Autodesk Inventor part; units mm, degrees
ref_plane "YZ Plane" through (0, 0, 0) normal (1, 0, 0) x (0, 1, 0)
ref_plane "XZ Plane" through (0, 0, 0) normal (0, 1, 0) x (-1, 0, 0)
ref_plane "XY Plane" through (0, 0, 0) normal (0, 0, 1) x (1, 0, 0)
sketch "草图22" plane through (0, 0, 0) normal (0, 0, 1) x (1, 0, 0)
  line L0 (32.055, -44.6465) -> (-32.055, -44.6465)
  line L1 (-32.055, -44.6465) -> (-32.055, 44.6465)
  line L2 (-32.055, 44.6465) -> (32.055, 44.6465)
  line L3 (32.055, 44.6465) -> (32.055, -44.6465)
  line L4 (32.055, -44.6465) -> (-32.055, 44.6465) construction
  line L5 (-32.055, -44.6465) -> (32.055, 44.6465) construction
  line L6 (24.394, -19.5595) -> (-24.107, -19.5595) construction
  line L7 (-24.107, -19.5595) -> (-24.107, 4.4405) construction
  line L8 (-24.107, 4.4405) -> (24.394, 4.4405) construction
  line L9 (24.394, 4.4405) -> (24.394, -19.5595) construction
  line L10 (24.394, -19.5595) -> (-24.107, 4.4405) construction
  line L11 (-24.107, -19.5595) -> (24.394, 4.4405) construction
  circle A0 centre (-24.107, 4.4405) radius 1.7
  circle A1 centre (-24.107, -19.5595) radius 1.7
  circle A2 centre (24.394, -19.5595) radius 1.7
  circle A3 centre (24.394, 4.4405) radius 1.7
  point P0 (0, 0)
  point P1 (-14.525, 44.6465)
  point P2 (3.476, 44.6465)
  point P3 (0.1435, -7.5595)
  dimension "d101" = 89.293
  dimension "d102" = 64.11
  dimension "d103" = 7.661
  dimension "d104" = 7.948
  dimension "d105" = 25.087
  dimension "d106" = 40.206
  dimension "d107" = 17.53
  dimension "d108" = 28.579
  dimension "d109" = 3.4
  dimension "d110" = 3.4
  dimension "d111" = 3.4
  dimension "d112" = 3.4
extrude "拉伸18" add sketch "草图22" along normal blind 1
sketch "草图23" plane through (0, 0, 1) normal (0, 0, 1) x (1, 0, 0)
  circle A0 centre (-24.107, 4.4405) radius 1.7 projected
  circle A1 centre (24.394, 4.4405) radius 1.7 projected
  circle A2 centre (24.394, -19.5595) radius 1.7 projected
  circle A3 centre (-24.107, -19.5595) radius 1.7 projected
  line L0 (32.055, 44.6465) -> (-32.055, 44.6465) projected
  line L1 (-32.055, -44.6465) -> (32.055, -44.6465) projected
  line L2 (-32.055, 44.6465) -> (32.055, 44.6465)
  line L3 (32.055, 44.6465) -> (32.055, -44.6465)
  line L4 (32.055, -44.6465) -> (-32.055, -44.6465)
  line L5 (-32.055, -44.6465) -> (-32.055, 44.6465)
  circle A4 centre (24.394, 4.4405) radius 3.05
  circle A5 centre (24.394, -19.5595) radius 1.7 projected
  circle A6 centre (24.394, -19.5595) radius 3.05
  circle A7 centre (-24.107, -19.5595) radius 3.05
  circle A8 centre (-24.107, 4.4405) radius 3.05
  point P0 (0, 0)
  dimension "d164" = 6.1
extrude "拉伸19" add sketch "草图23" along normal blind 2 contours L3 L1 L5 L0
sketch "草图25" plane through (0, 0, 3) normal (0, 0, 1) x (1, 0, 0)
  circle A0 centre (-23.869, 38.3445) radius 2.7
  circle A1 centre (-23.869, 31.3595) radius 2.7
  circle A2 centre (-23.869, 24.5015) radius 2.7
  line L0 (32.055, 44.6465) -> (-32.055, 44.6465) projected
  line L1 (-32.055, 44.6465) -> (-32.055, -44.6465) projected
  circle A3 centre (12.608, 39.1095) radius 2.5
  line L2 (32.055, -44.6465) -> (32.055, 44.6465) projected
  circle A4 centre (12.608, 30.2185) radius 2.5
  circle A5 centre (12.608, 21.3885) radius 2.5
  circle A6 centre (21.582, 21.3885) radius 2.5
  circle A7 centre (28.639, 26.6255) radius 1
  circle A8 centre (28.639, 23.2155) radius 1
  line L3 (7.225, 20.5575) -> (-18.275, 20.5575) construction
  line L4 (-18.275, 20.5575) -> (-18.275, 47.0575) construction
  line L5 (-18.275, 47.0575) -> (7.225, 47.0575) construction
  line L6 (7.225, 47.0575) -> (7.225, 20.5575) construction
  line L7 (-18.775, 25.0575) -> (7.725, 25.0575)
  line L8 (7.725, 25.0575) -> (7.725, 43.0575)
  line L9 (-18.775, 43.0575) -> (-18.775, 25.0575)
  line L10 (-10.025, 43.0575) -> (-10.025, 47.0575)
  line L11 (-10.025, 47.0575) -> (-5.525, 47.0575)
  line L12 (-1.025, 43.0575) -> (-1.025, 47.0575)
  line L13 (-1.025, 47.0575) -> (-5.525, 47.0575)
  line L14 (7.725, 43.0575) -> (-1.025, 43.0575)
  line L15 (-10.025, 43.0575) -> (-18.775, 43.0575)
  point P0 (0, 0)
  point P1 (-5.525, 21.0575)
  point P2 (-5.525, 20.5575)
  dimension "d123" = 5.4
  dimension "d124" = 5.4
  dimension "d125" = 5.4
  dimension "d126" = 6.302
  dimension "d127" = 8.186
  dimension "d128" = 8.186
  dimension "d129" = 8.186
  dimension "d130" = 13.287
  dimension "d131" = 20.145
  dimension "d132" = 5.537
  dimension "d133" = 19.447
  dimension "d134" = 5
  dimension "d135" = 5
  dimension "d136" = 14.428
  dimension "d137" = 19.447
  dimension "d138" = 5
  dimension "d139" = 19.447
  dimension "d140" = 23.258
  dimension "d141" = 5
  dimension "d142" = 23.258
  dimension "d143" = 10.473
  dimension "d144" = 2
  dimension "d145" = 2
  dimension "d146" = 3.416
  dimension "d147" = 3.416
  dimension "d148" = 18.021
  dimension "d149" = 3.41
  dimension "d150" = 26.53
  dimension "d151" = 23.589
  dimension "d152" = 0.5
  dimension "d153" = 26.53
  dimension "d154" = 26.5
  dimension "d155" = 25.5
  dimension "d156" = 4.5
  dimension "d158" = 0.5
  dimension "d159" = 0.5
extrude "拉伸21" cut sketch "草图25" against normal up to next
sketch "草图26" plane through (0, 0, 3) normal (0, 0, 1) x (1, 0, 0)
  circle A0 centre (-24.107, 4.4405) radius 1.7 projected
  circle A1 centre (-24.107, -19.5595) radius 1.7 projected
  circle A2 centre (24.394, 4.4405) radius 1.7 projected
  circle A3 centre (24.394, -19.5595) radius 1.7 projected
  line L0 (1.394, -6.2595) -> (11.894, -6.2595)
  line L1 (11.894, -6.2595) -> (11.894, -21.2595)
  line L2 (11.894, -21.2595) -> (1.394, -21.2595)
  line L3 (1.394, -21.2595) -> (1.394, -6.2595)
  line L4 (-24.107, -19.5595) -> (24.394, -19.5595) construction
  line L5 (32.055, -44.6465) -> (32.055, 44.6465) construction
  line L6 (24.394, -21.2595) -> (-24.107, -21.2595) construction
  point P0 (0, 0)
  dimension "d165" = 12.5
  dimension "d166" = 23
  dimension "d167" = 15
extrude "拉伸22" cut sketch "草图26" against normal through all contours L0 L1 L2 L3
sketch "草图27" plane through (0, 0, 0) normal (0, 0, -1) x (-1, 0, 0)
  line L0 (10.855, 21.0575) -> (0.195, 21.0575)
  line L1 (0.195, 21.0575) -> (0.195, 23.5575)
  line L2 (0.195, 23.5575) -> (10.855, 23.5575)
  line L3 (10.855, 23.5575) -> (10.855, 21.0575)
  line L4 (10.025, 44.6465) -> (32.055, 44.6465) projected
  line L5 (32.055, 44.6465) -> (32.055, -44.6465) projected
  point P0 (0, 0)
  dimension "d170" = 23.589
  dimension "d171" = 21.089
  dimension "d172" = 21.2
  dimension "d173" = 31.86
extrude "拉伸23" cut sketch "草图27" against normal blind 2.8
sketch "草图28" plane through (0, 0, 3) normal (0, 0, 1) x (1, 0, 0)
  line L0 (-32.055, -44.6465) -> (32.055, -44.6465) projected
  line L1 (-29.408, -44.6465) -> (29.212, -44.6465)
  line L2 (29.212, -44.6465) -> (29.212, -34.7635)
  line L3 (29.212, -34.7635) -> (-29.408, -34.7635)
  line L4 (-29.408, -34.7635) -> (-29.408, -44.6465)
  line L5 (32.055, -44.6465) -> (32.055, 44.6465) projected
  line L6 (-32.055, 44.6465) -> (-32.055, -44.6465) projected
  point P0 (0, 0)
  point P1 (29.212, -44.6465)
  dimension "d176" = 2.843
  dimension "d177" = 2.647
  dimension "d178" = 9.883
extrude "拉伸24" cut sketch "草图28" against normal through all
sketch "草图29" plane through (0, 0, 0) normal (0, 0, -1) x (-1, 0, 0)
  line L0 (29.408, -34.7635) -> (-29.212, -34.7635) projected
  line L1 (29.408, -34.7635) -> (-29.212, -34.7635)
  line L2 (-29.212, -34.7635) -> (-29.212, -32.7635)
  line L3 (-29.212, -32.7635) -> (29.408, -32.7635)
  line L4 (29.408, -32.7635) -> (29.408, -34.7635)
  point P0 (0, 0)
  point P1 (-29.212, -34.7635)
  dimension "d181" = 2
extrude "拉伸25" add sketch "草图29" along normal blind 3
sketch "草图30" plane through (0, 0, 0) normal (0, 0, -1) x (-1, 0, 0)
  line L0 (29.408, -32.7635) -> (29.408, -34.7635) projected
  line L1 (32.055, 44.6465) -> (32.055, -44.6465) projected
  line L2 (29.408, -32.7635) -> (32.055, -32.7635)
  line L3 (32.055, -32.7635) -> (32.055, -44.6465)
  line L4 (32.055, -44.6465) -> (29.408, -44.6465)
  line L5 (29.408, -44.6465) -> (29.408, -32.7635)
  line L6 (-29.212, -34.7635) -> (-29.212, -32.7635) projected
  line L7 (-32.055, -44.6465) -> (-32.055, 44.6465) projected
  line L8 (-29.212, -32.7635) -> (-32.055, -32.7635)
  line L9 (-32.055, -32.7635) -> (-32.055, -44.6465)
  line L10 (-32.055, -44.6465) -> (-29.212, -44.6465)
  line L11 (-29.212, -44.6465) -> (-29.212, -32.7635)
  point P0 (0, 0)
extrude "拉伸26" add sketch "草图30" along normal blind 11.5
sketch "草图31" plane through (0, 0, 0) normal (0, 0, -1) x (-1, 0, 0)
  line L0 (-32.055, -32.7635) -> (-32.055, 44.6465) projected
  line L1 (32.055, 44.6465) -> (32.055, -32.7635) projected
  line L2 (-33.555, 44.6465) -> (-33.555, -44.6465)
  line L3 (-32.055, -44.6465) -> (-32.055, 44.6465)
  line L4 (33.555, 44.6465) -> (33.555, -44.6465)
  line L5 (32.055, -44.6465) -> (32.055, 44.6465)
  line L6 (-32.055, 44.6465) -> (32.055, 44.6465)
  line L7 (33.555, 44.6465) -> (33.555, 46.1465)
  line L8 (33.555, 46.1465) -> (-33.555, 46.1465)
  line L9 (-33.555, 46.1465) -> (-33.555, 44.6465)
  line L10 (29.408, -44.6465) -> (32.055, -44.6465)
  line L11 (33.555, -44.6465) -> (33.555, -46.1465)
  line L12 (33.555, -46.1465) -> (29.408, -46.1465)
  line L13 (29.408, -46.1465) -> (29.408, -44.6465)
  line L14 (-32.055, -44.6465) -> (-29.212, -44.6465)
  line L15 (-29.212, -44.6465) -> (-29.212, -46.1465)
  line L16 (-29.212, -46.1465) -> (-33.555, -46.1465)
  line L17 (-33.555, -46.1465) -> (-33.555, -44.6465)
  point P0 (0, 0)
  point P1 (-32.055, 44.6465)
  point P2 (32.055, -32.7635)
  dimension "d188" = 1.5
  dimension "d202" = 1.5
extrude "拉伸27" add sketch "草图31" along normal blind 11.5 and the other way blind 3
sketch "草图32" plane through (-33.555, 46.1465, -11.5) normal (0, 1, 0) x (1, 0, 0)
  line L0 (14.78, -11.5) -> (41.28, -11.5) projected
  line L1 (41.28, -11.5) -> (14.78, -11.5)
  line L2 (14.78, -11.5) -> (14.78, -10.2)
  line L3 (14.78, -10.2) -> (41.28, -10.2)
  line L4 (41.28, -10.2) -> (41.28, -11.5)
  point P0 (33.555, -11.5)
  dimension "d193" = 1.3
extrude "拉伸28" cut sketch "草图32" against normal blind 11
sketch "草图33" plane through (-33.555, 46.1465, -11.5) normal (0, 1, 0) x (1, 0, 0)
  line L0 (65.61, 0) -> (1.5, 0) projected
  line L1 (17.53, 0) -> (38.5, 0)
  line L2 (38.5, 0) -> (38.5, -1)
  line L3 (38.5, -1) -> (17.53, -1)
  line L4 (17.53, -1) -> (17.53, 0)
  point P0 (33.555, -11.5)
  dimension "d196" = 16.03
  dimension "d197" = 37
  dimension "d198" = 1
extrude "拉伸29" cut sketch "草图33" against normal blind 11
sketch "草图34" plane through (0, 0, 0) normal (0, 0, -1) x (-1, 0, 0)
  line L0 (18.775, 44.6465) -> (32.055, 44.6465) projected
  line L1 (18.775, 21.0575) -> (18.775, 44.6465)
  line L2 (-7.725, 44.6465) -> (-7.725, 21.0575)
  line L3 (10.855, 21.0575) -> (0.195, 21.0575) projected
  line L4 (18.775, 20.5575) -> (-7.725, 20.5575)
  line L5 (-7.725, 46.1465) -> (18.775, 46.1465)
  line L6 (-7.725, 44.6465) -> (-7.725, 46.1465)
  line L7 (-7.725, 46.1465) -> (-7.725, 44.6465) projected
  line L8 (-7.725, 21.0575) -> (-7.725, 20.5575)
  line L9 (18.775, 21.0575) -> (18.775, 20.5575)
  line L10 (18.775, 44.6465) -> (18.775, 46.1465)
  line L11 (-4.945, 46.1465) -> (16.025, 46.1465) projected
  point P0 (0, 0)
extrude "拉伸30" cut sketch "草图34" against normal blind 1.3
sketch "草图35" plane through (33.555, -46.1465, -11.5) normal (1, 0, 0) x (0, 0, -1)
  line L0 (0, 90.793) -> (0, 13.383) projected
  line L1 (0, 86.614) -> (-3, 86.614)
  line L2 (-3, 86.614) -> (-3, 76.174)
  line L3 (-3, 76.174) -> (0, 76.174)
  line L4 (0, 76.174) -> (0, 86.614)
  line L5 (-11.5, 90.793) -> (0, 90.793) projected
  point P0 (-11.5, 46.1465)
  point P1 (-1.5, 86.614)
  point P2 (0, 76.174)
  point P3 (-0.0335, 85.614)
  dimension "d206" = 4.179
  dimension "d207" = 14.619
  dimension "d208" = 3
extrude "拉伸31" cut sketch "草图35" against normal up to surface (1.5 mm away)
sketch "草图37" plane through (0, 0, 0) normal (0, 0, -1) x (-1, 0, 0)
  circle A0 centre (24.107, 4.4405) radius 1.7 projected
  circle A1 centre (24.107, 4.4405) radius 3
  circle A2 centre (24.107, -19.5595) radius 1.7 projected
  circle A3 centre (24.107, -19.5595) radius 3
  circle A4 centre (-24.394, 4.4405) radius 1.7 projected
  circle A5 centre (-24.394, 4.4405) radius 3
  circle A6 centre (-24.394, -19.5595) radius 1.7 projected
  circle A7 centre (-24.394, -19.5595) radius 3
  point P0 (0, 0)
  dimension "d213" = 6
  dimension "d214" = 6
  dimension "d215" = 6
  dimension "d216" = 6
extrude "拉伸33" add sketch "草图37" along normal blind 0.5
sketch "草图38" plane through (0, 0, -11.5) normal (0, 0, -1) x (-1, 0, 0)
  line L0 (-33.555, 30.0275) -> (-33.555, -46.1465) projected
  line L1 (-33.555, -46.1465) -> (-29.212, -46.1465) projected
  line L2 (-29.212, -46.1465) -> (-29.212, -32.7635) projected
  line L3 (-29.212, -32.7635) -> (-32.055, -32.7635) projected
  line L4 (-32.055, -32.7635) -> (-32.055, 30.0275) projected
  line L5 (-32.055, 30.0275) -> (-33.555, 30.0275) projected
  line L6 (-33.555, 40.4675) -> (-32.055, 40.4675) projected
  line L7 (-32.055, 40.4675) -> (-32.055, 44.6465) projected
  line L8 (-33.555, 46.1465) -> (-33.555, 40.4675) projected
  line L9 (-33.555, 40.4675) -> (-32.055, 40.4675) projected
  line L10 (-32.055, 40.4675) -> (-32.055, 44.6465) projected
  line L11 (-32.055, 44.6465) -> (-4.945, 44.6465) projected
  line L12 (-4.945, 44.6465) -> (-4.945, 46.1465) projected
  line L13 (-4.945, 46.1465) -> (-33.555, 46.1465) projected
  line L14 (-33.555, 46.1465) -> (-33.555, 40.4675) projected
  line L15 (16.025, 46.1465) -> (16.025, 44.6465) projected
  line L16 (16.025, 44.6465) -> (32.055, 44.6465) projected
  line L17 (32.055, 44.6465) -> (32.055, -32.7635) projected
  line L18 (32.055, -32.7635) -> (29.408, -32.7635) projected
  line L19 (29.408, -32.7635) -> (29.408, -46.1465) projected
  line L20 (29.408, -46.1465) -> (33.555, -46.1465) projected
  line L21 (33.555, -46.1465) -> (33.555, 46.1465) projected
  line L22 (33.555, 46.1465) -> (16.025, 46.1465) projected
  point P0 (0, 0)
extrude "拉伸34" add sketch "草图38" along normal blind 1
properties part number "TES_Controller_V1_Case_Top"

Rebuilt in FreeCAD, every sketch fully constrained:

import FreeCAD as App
import Part
import Sketcher
from FreeCAD import Vector

doc = App.newDocument("Part")
body = doc.addObject("PartDesign::Body", "Body")

sketch1 = body.newObject("Sketcher::SketchObject", "Sketch")
sketch1.AttachmentSupport = (doc.getObject("XY_Plane"), [""])
sketch1.MapMode = "FlatFace"
sketch1.addGeometry(Part.LineSegment(Vector(-32.1, -44.6, 0), Vector(32.1, -44.6, 0)), False)
sketch1.addGeometry(Part.LineSegment(Vector(32.1, -44.6, 0), Vector(32.1, 44.6, 0)), False)
sketch1.addGeometry(Part.LineSegment(Vector(32.1, 44.6, 0), Vector(-32.1, 44.6, 0)), False)
sketch1.addGeometry(Part.LineSegment(Vector(-32.1, 44.6, 0), Vector(-32.1, -44.6, 0)), False)
sketch1.addGeometry(Part.Circle(Vector(-24.1, -19.6, 0), Vector(0, 0, 1), 1.7), False)
sketch1.addGeometry(Part.Circle(Vector(24.4, -19.6, 0), Vector(0, 0, 1), 1.7), False)
sketch1.addGeometry(Part.Circle(Vector(-24.1, 4.4, 0), Vector(0, 0, 1), 1.7), False)
sketch1.addGeometry(Part.Circle(Vector(24.4, 4.4, 0), Vector(0, 0, 1), 1.7), False)
sketch1.addConstraint(Sketcher.Constraint("Coincident", 0, 2, 1, 1))
sketch1.addConstraint(Sketcher.Constraint("Coincident", 1, 2, 2, 1))
sketch1.addConstraint(Sketcher.Constraint("Coincident", 2, 2, 3, 1))
sketch1.addConstraint(Sketcher.Constraint("Coincident", 3, 2, 0, 1))
sketch1.addConstraint(Sketcher.Constraint("Horizontal", 0))
sketch1.addConstraint(Sketcher.Constraint("Vertical", 1))
sketch1.addConstraint(Sketcher.Constraint("Horizontal", 2))
sketch1.addConstraint(Sketcher.Constraint("Vertical", 3))
sketch1.addConstraint(Sketcher.Constraint("Equal", 4, 5))
sketch1.addConstraint(Sketcher.Constraint("Equal", 5, 6))
sketch1.addConstraint(Sketcher.Constraint("Equal", 6, 7))
sketch1.addConstraint(Sketcher.Constraint("Symmetric", 0, 2, 2, 2, -1, 1))
sketch1.addConstraint(Sketcher.Constraint("Horizontal", 4, 3, 5, 3))
sketch1.addConstraint(Sketcher.Constraint("Horizontal", 6, 3, 7, 3))
sketch1.addConstraint(Sketcher.Constraint("Vertical", 4, 3, 6, 3))
sketch1.addConstraint(Sketcher.Constraint("Vertical", 5, 3, 7, 3))
sketch1.addConstraint(Sketcher.Constraint("Diameter", 4, 3.4))
sketch1.addConstraint(Sketcher.Constraint("DistanceX", 0, 1, 0, 2, 64.11))
sketch1.addConstraint(Sketcher.Constraint("DistanceY", 1, 1, 1, 2, 89.293))
sketch1.addConstraint(Sketcher.Constraint("DistanceY", 4, 3, 6, 3, 24.0))
sketch1.addConstraint(Sketcher.Constraint("DistanceX", 5, 3, 0, 2, 7.661))
sketch1.addConstraint(Sketcher.Constraint("DistanceY", 0, 2, 5, 3, 25.087))
sketch1.addConstraint(Sketcher.Constraint("DistanceX", 2, 2, 6, 3, 7.948))
pad1 = body.newObject("PartDesign::Pad", "Pad")
pad1.Profile = sketch1
pad1.Length = 1

sketch2 = body.newObject("Sketcher::SketchObject", "Sketch001")
sketch2.AttachmentSupport = (doc.getObject("XY_Plane"), [""])
sketch2.MapMode = "FlatFace"
sketch2.AttachmentOffset = App.Placement(Vector(0, 0, 1), App.Rotation())
sketch2.addGeometry(Part.LineSegment(Vector(32.1, -44.6, 0), Vector(32.1, 44.6, 0)), False)
sketch2.addGeometry(Part.LineSegment(Vector(32.1, 44.6, 0), Vector(-32.1, 44.6, 0)), False)
sketch2.addGeometry(Part.LineSegment(Vector(-32.1, 44.6, 0), Vector(-32.1, -44.6, 0)), False)
sketch2.addGeometry(Part.LineSegment(Vector(-32.1, -44.6, 0), Vector(32.1, -44.6, 0)), False)
sketch2.addGeometry(Part.Circle(Vector(-24.1, -19.6, 0), Vector(0, 0, 1), 3), False)
sketch2.addGeometry(Part.Circle(Vector(24.4, -19.6, 0), Vector(0, 0, 1), 3), False)
sketch2.addGeometry(Part.Circle(Vector(-24.1, 4.4, 0), Vector(0, 0, 1), 3), False)
sketch2.addGeometry(Part.Circle(Vector(24.4, 4.4, 0), Vector(0, 0, 1), 3), False)
sketch2.addConstraint(Sketcher.Constraint("Coincident", 0, 2, 1, 1))
sketch2.addConstraint(Sketcher.Constraint("Coincident", 1, 2, 2, 1))
sketch2.addConstraint(Sketcher.Constraint("Coincident", 2, 2, 3, 1))
sketch2.addConstraint(Sketcher.Constraint("Coincident", 3, 2, 0, 1))
sketch2.addConstraint(Sketcher.Constraint("Vertical", 0))
sketch2.addConstraint(Sketcher.Constraint("Horizontal", 1))
sketch2.addConstraint(Sketcher.Constraint("Vertical", 2))
sketch2.addConstraint(Sketcher.Constraint("Horizontal", 3))
sketch2.addConstraint(Sketcher.Constraint("Equal", 4, 5))
sketch2.addConstraint(Sketcher.Constraint("Equal", 5, 6))
sketch2.addConstraint(Sketcher.Constraint("Equal", 6, 7))
sketch2.addConstraint(Sketcher.Constraint("Symmetric", 0, 2, 2, 2, -1, 1))
sketch2.addConstraint(Sketcher.Constraint("Horizontal", 4, 3, 5, 3))
sketch2.addConstraint(Sketcher.Constraint("Horizontal", 6, 3, 7, 3))
sketch2.addConstraint(Sketcher.Constraint("Vertical", 4, 3, 6, 3))
sketch2.addConstraint(Sketcher.Constraint("Vertical", 5, 3, 7, 3))
sketch2.addConstraint(Sketcher.Constraint("Diameter", 4, 6.1))
sketch2.addConstraint(Sketcher.Constraint("DistanceY", 4, 3, 6, 3, 24.0))
sketch2.addConstraint(Sketcher.Constraint("DistanceX", 1, 2, 1, 1, 64.11))
sketch2.addConstraint(Sketcher.Constraint("DistanceY", 0, 1, 0, 2, 89.293))
sketch2.addConstraint(Sketcher.Constraint("DistanceX", 4, 3, -1, 1, 24.107))
sketch2.addConstraint(Sketcher.Constraint("DistanceX", -1, 1, 5, 3, 24.394))
sketch2.addConstraint(Sketcher.Constraint("DistanceY", 7, 3, 0, 2, 40.206))
pad2 = body.newObject("PartDesign::Pad", "Pad001")
pad2.Profile = sketch2
pad2.Length = 2

sketch3 = body.newObject("Sketcher::SketchObject", "Sketch002")
sketch3.AttachmentSupport = (doc.getObject("XY_Plane"), [""])
sketch3.MapMode = "FlatFace"
sketch3.AttachmentOffset = App.Placement(Vector(0, 0, 3), App.Rotation())
sketch3.addGeometry(Part.Circle(Vector(-23.9, 38.3, 0), Vector(0, 0, 1), 2.7), False)
sketch3.addGeometry(Part.Circle(Vector(-23.9, 31.4, 0), Vector(0, 0, 1), 2.7), False)
sketch3.addGeometry(Part.Circle(Vector(-23.9, 24.5, 0), Vector(0, 0, 1), 2.7), False)
sketch3.addGeometry(Part.LineSegment(Vector(-1, 43.1, 0), Vector(-1, 47.1, 0)), False)
sketch3.addGeometry(Part.LineSegment(Vector(-1, 47.1, 0), Vector(-10, 47.1, 0)), False)
sketch3.addGeometry(Part.LineSegment(Vector(-10, 47.1, 0), Vector(-10, 43.1, 0)), False)
sketch3.addGeometry(Part.LineSegment(Vector(-10, 43.1, 0), Vector(-18.8, 43.1, 0)), False)
sketch3.addGeometry(Part.LineSegment(Vector(-18.8, 43.1, 0), Vector(-18.8, 25.1, 0)), False)
sketch3.addGeometry(Part.LineSegment(Vector(-18.8, 25.1, 0), Vector(7.7, 25.1, 0)), False)
sketch3.addGeometry(Part.LineSegment(Vector(7.7, 25.1, 0), Vector(7.7, 43.1, 0)), False)
sketch3.addGeometry(Part.LineSegment(Vector(7.7, 43.1, 0), Vector(-1, 43.1, 0)), False)
sketch3.addGeometry(Part.Circle(Vector(12.6, 39.1, 0), Vector(0, 0, 1), 2.5), False)
sketch3.addGeometry(Part.Circle(Vector(12.6, 30.2, 0), Vector(0, 0, 1), 2.5), False)
sketch3.addGeometry(Part.Circle(Vector(12.6, 21.4, 0), Vector(0, 0, 1), 2.5), False)
sketch3.addGeometry(Part.Circle(Vector(21.6, 21.4, 0), Vector(0, 0, 1), 2.5), False)
sketch3.addGeometry(Part.Circle(Vector(28.6, 26.6, 0), Vector(0, 0, 1), 1), False)
sketch3.addGeometry(Part.Circle(Vector(28.6, 23.2, 0), Vector(0, 0, 1), 1), False)
sketch3.addConstraint(Sketcher.Constraint("Coincident", 3, 2, 4, 1))
sketch3.addConstraint(Sketcher.Constraint("Coincident", 4, 2, 5, 1))
sketch3.addConstraint(Sketcher.Constraint("Coincident", 5, 2, 6, 1))
sketch3.addConstraint(Sketcher.Constraint("Coincident", 6, 2, 7, 1))
sketch3.addConstraint(Sketcher.Constraint("Coincident", 7, 2, 8, 1))
sketch3.addConstraint(Sketcher.Constraint("Coincident", 8, 2, 9, 1))
sketch3.addConstraint(Sketcher.Constraint("Coincident", 9, 2, 10, 1))
sketch3.addConstraint(Sketcher.Constraint("Coincident", 10, 2, 3, 1))
sketch3.addConstraint(Sketcher.Constraint("Vertical", 3))
sketch3.addConstraint(Sketcher.Constraint("Horizontal", 4))
sketch3.addConstraint(Sketcher.Constraint("Vertical", 5))
sketch3.addConstraint(Sketcher.Constraint("Horizontal", 6))
sketch3.addConstraint(Sketcher.Constraint("Vertical", 7))
sketch3.addConstraint(Sketcher.Constraint("Horizontal", 8))
sketch3.addConstraint(Sketcher.Constraint("Vertical", 9))
sketch3.addConstraint(Sketcher.Constraint("Horizontal", 10))
sketch3.addConstraint(Sketcher.Constraint("Equal", 0, 1))
sketch3.addConstraint(Sketcher.Constraint("Equal", 1, 2))
sketch3.addConstraint(Sketcher.Constraint("Equal", 11, 12))
sketch3.addConstraint(Sketcher.Constraint("Equal", 12, 13))
sketch3.addConstraint(Sketcher.Constraint("Equal", 13, 14))
sketch3.addConstraint(Sketcher.Constraint("Equal", 15, 16))
sketch3.addConstraint(Sketcher.Constraint("Horizontal", 13, 3, 14, 3))
sketch3.addConstraint(Sketcher.Constraint("Horizontal", 6, 2, 9, 2))
sketch3.addConstraint(Sketcher.Constraint("Vertical", 0, 3, 1, 3))
sketch3.addConstraint(Sketcher.Constraint("Vertical", 1, 3, 2, 3))
sketch3.addConstraint(Sketcher.Constraint("Vertical", 11, 3, 12, 3))
sketch3.addConstraint(Sketcher.Constraint("Vertical", 12, 3, 13, 3))
sketch3.addConstraint(Sketcher.Constraint("Vertical", 15, 3, 16, 3))
sketch3.addConstraint(Sketcher.Constraint("Equal", 6, 10))
sketch3.addConstraint(Sketcher.Constraint("Diameter", 11, 5.0))
sketch3.addConstraint(Sketcher.Constraint("Diameter", 15, 2.0))
sketch3.addConstraint(Sketcher.Constraint("Diameter", 0, 5.4))
sketch3.addConstraint(Sketcher.Constraint("DistanceX", 8, 1, 8, 2, 26.5))
sketch3.addConstraint(Sketcher.Constraint("DistanceX", 4, 2, 4, 1, 9.0))
sketch3.addConstraint(Sketcher.Constraint("DistanceY", 3, 1, 3, 2, 4.0))
sketch3.addConstraint(Sketcher.Constraint("DistanceY", 7, 2, 7, 1, 18.0))
sketch3.addConstraint(Sketcher.Constraint("DistanceY", 16, 3, 15, 3, 3.41))
sketch3.addConstraint(Sketcher.Constraint("DistanceY", 7, 2, 1, 3, 6.302))
sketch3.addConstraint(Sketcher.Constraint("DistanceY", 7, 2, 0, 3, 13.287))
sketch3.addConstraint(Sketcher.Constraint("DistanceY", 1, 3, 11, 3, 7.75))
sketch3.addConstraint(Sketcher.Constraint("DistanceY", 13, 3, 12, 3, 8.83))
sketch3.addConstraint(Sketcher.Constraint("DistanceX", 0, 3, -1, 1, 23.869))
sketch3.addConstraint(Sketcher.Constraint("DistanceX", -1, 1, 11, 3, 12.608))
sketch3.addConstraint(Sketcher.Constraint("DistanceX", -1, 1, 14, 3, 21.582))
sketch3.addConstraint(Sketcher.Constraint("DistanceX", -1, 1, 15, 3, 28.639))
sketch3.addConstraint(Sketcher.Constraint("DistanceX", 3, 2, -1, 1, 1.025))
sketch3.addConstraint(Sketcher.Constraint("DistanceY", 2, 3, 1, 3, 6.858))
sketch3.addConstraint(Sketcher.Constraint("DistanceY", 12, 3, 11, 3, 8.891))
sketch3.addConstraint(Sketcher.Constraint("DistanceY", 14, 3, 15, 3, 5.237))
sketch3.addConstraint(Sketcher.Constraint("DistanceY", -1, 1, 0, 3, 38.3445))
pocket1 = body.newObject("PartDesign::Pocket", "Pocket")
pocket1.Profile = sketch3
pocket1.Type = "UpToFirst"

sketch4 = body.newObject("Sketcher::SketchObject", "Sketch003")
sketch4.AttachmentSupport = (doc.getObject("XY_Plane"), [""])
sketch4.MapMode = "FlatFace"
sketch4.AttachmentOffset = App.Placement(Vector(0, 0, 3), App.Rotation())
sketch4.addGeometry(Part.LineSegment(Vector(12, -6, 0), Vector(1, -6, 0)), False)
sketch4.addGeometry(Part.LineSegment(Vector(1, -6, 0), Vector(1, -21, 0)), False)
sketch4.addGeometry(Part.LineSegment(Vector(1, -21, 0), Vector(12, -21, 0)), False)
sketch4.addGeometry(Part.LineSegment(Vector(12, -21, 0), Vector(12, -6, 0)), False)
sketch4.addConstraint(Sketcher.Constraint("Coincident", 0, 2, 1, 1))
sketch4.addConstraint(Sketcher.Constraint("Coincident", 1, 2, 2, 1))
sketch4.addConstraint(Sketcher.Constraint("Coincident", 2, 2, 3, 1))
sketch4.addConstraint(Sketcher.Constraint("Coincident", 3, 2, 0, 1))
sketch4.addConstraint(Sketcher.Constraint("Horizontal", 0))
sketch4.addConstraint(Sketcher.Constraint("Vertical", 1))
sketch4.addConstraint(Sketcher.Constraint("Horizontal", 2))
sketch4.addConstraint(Sketcher.Constraint("Vertical", 3))
sketch4.addConstraint(Sketcher.Constraint("DistanceY", 1, 2, 1, 1, 15.0))
sketch4.addConstraint(Sketcher.Constraint("DistanceX", 0, 2, 0, 1, 10.5))
sketch4.addConstraint(Sketcher.Constraint("DistanceX", -1, 1, 0, 2, 1.394))
sketch4.addConstraint(Sketcher.Constraint("DistanceY", 0, 2, -1, 1, 6.2595))
pocket2 = body.newObject("PartDesign::Pocket", "Pocket001")
pocket2.Profile = sketch4
pocket2.Type = "ThroughAll"

sketch5 = body.newObject("Sketcher::SketchObject", "Sketch004")
sketch5.AttachmentSupport = (doc.getObject("XY_Plane"), [""])
sketch5.MapMode = "FlatFace"
sketch5.addGeometry(Part.LineSegment(Vector(-0.2, 21.1, 0), Vector(-10.9, 21.1, 0)), False)
sketch5.addGeometry(Part.LineSegment(Vector(-10.9, 21.1, 0), Vector(-10.9, 23.6, 0)), False)
sketch5.addGeometry(Part.LineSegment(Vector(-10.9, 23.6, 0), Vector(-0.2, 23.6, 0)), False)
sketch5.addGeometry(Part.LineSegment(Vector(-0.2, 23.6, 0), Vector(-0.2, 21.1, 0)), False)
sketch5.addConstraint(Sketcher.Constraint("Coincident", 0, 2, 1, 1))
sketch5.addConstraint(Sketcher.Constraint("Coincident", 1, 2, 2, 1))
sketch5.addConstraint(Sketcher.Constraint("Coincident", 2, 2, 3, 1))
sketch5.addConstraint(Sketcher.Constraint("Coincident", 3, 2, 0, 1))
sketch5.addConstraint(Sketcher.Constraint("Horizontal", 0))
sketch5.addConstraint(Sketcher.Constraint("Vertical", 1))
sketch5.addConstraint(Sketcher.Constraint("Horizontal", 2))
sketch5.addConstraint(Sketcher.Constraint("Vertical", 3))
sketch5.addConstraint(Sketcher.Constraint("DistanceY", 1, 1, 1, 2, 2.5))
sketch5.addConstraint(Sketcher.Constraint("DistanceX", 0, 2, 0, 1, 10.66))
sketch5.addConstraint(Sketcher.Constraint("DistanceX", 0, 2, -1, 1, 10.855))
sketch5.addConstraint(Sketcher.Constraint("DistanceY", -1, 1, 0, 2, 21.0575))
pocket3 = body.newObject("PartDesign::Pocket", "Pocket002")
pocket3.Profile = sketch5
pocket3.Length = 2.8
pocket3.Reversed = True

sketch6 = body.newObject("Sketcher::SketchObject", "Sketch005")
sketch6.AttachmentSupport = (doc.getObject("XY_Plane"), [""])
sketch6.MapMode = "FlatFace"
sketch6.AttachmentOffset = App.Placement(Vector(0, 0, 3), App.Rotation())
sketch6.addGeometry(Part.LineSegment(Vector(-29, -35, 0), Vector(-29, -45, 0)), False)
sketch6.addGeometry(Part.LineSegment(Vector(-29, -45, 0), Vector(29, -45, 0)), False)
sketch6.addGeometry(Part.LineSegment(Vector(29, -45, 0), Vector(29, -35, 0)), False)
sketch6.addGeometry(Part.LineSegment(Vector(29, -35, 0), Vector(-29, -35, 0)), False)
sketch6.addConstraint(Sketcher.Constraint("Coincident", 0, 2, 1, 1))
sketch6.addConstraint(Sketcher.Constraint("Coincident", 1, 2, 2, 1))
sketch6.addConstraint(Sketcher.Constraint("Coincident", 2, 2, 3, 1))
sketch6.addConstraint(Sketcher.Constraint("Coincident", 3, 2, 0, 1))
sketch6.addConstraint(Sketcher.Constraint("Vertical", 0))
sketch6.addConstraint(Sketcher.Constraint("Horizontal", 1))
sketch6.addConstraint(Sketcher.Constraint("Vertical", 2))
sketch6.addConstraint(Sketcher.Constraint("Horizontal", 3))
sketch6.addConstraint(Sketcher.Constraint("DistanceY", 0, 2, 0, 1, 9.883))
sketch6.addConstraint(Sketcher.Constraint("DistanceX", 1, 1, 1, 2, 58.62))
sketch6.addConstraint(Sketcher.Constraint("DistanceX", 0, 2, -1, 1, 29.408))
sketch6.addConstraint(Sketcher.Constraint("DistanceY", 0, 2, -1, 1, 44.6465))
pocket4 = body.newObject("PartDesign::Pocket", "Pocket003")
pocket4.Profile = sketch6
pocket4.Type = "ThroughAll"

sketch7 = body.newObject("Sketcher::SketchObject", "Sketch006")
sketch7.AttachmentSupport = (doc.getObject("XY_Plane"), [""])
sketch7.MapMode = "FlatFace"
sketch7.addGeometry(Part.LineSegment(Vector(29.2, -34.8, 0), Vector(-29.4, -34.8, 0)), False)
sketch7.addGeometry(Part.LineSegment(Vector(-29.4, -34.8, 0), Vector(-29.4, -32.8, 0)), False)
sketch7.addGeometry(Part.LineSegment(Vector(-29.4, -32.8, 0), Vector(29.2, -32.8, 0)), False)
sketch7.addGeometry(Part.LineSegment(Vector(29.2, -32.8, 0), Vector(29.2, -34.8, 0)), False)
sketch7.addConstraint(Sketcher.Constraint("Coincident", 0, 2, 1, 1))
sketch7.addConstraint(Sketcher.Constraint("Coincident", 1, 2, 2, 1))
sketch7.addConstraint(Sketcher.Constraint("Coincident", 2, 2, 3, 1))
sketch7.addConstraint(Sketcher.Constraint("Coincident", 3, 2, 0, 1))
sketch7.addConstraint(Sketcher.Constraint("Horizontal", 0))
sketch7.addConstraint(Sketcher.Constraint("Vertical", 1))
sketch7.addConstraint(Sketcher.Constraint("Horizontal", 2))
sketch7.addConstraint(Sketcher.Constraint("Vertical", 3))
sketch7.addConstraint(Sketcher.Constraint("DistanceY", 1, 1, 1, 2, 2.0))
sketch7.addConstraint(Sketcher.Constraint("DistanceX", 0, 2, 0, 1, 58.62))
sketch7.addConstraint(Sketcher.Constraint("DistanceX", 0, 2, -1, 1, 29.408))
sketch7.addConstraint(Sketcher.Constraint("DistanceY", 0, 2, -1, 1, 34.7635))
pad3 = body.newObject("PartDesign::Pad", "Pad002")
pad3.Profile = sketch7
pad3.Length = 3
pad3.Reversed = True

sketch8 = body.newObject("Sketcher::SketchObject", "Sketch007")
sketch8.AttachmentSupport = (doc.getObject("XY_Plane"), [""])
sketch8.MapMode = "FlatFace"
sketch8.addGeometry(Part.LineSegment(Vector(-32.1, -32.8, 0), Vector(-29.4, -32.8, 0)), False)
sketch8.addGeometry(Part.LineSegment(Vector(-29.4, -32.8, 0), Vector(-29.4, -44.6, 0)), False)
sketch8.addGeometry(Part.LineSegment(Vector(-29.4, -44.6, 0), Vector(-32.1, -44.6, 0)), False)
sketch8.addGeometry(Part.LineSegment(Vector(-32.1, -44.6, 0), Vector(-32.1, -32.8, 0)), False)
sketch8.addGeometry(Part.LineSegment(Vector(29.2, -44.6, 0), Vector(29.2, -32.8, 0)), False)
sketch8.addGeometry(Part.LineSegment(Vector(29.2, -32.8, 0), Vector(32.1, -32.8, 0)), False)
sketch8.addGeometry(Part.LineSegment(Vector(32.1, -32.8, 0), Vector(32.1, -44.6, 0)), False)
sketch8.addGeometry(Part.LineSegment(Vector(32.1, -44.6, 0), Vector(29.2, -44.6, 0)), False)
sketch8.addConstraint(Sketcher.Constraint("Coincident", 0, 2, 1, 1))
sketch8.addConstraint(Sketcher.Constraint("Coincident", 1, 2, 2, 1))
sketch8.addConstraint(Sketcher.Constraint("Coincident", 2, 2, 3, 1))
sketch8.addConstraint(Sketcher.Constraint("Coincident", 3, 2, 0, 1))
sketch8.addConstraint(Sketcher.Constraint("Coincident", 4, 2, 5, 1))
sketch8.addConstraint(Sketcher.Constraint("Coincident", 5, 2, 6, 1))
sketch8.addConstraint(Sketcher.Constraint("Coincident", 6, 2, 7, 1))
sketch8.addConstraint(Sketcher.Constraint("Coincident", 7, 2, 4, 1))
sketch8.addConstraint(Sketcher.Constraint("Horizontal", 0))
sketch8.addConstraint(Sketcher.Constraint("Vertical", 1))
sketch8.addConstraint(Sketcher.Constraint("Horizontal", 2))
sketch8.addConstraint(Sketcher.Constraint("Vertical", 3))
sketch8.addConstraint(Sketcher.Constraint("Vertical", 4))
sketch8.addConstraint(Sketcher.Constraint("Horizontal", 5))
sketch8.addConstraint(Sketcher.Constraint("Vertical", 6))
sketch8.addConstraint(Sketcher.Constraint("Horizontal", 7))
sketch8.addConstraint(Sketcher.Constraint("Symmetric", 3, 2, 5, 2, -2))
sketch8.addConstraint(Sketcher.Constraint("Horizontal", 2, 2, 6, 2))
sketch8.addConstraint(Sketcher.Constraint("DistanceX", 0, 1, 0, 2, 2.647))
sketch8.addConstraint(Sketcher.Constraint("DistanceX", 5, 1, 5, 2, 2.843))
sketch8.addConstraint(Sketcher.Constraint("DistanceY", 1, 2, 1, 1, 11.883))
sketch8.addConstraint(Sketcher.Constraint("DistanceX", 0, 2, 4, 2, 58.62))
sketch8.addConstraint(Sketcher.Constraint("DistanceY", 0, 2, -1, 1, 32.7635))
pad4 = body.newObject("PartDesign::Pad", "Pad003")
pad4.Profile = sketch8
pad4.Length = 11.5
pad4.Reversed = True

sketch9 = body.newObject("Sketcher::SketchObject", "Sketch008")
sketch9.AttachmentSupport = (doc.getObject("XY_Plane"), [""])
sketch9.MapMode = "FlatFace"
sketch9.addGeometry(Part.LineSegment(Vector(32.1, -44.6, 0), Vector(32.1, 44.6, 0)), False)
sketch9.addGeometry(Part.LineSegment(Vector(32.1, 44.6, 0), Vector(-32.1, 44.6, 0)), False)
sketch9.addGeometry(Part.LineSegment(Vector(-32.1, 44.6, 0), Vector(-32.1, -44.6, 0)), False)
sketch9.addGeometry(Part.LineSegment(Vector(-32.1, -44.6, 0), Vector(-29.4, -44.6, 0)), False)
sketch9.addGeometry(Part.LineSegment(Vector(-29.4, -44.6, 0), Vector(-29.4, -46.1, 0)), False)
sketch9.addGeometry(Part.LineSegment(Vector(-29.4, -46.1, 0), Vector(-33.6, -46.1, 0)), False)
sketch9.addGeometry(Part.LineSegment(Vector(-33.6, -46.1, 0), Vector(-33.6, 46.1, 0)), False)
sketch9.addGeometry(Part.LineSegment(Vector(-33.6, 46.1, 0), Vector(33.6, 46.1, 0)), False)
sketch9.addGeometry(Part.LineSegment(Vector(33.6, 46.1, 0), Vector(33.6, -46.1, 0)), False)
sketch9.addGeometry(Part.LineSegment(Vector(33.6, -46.1, 0), Vector(29.2, -46.1, 0)), False)
sketch9.addGeometry(Part.LineSegment(Vector(29.2, -46.1, 0), Vector(29.2, -44.6, 0)), False)
sketch9.addGeometry(Part.LineSegment(Vector(29.2, -44.6, 0), Vector(32.1, -44.6, 0)), False)
sketch9.addConstraint(Sketcher.Constraint("Coincident", 0, 2, 1, 1))
sketch9.addConstraint(Sketcher.Constraint("Coincident", 1, 2, 2, 1))
sketch9.addConstraint(Sketcher.Constraint("Coincident", 2, 2, 3, 1))
sketch9.addConstraint(Sketcher.Constraint("Coincident", 3, 2, 4, 1))
sketch9.addConstraint(Sketcher.Constraint("Coincident", 4, 2, 5, 1))
sketch9.addConstraint(Sketcher.Constraint("Coincident", 5, 2, 6, 1))
sketch9.addConstraint(Sketcher.Constraint("Coincident", 6, 2, 7, 1))
sketch9.addConstraint(Sketcher.Constraint("Coincident", 7, 2, 8, 1))
sketch9.addConstraint(Sketcher.Constraint("Coincident", 8, 2, 9, 1))
sketch9.addConstraint(Sketcher.Constraint("Coincident", 9, 2, 10, 1))
sketch9.addConstraint(Sketcher.Constraint("Coincident", 10, 2, 11, 1))
sketch9.addConstraint(Sketcher.Constraint("Coincident", 11, 2, 0, 1))
sketch9.addConstraint(Sketcher.Constraint("Vertical", 0))
sketch9.addConstraint(Sketcher.Constraint("Horizontal", 1))
sketch9.addConstraint(Sketcher.Constraint("Vertical", 2))
sketch9.addConstraint(Sketcher.Constraint("Horizontal", 3))
sketch9.addConstraint(Sketcher.Constraint("Vertical", 4))
sketch9.addConstraint(Sketcher.Constraint("Horizontal", 5))
sketch9.addConstraint(Sketcher.Constraint("Vertical", 6))
sketch9.addConstraint(Sketcher.Constraint("Horizontal", 7))
sketch9.addConstraint(Sketcher.Constraint("Vertical", 8))
sketch9.addConstraint(Sketcher.Constraint("Horizontal", 9))
sketch9.addConstraint(Sketcher.Constraint("Vertical", 10))
sketch9.addConstraint(Sketcher.Constraint("Horizontal", 11))
sketch9.addConstraint(Sketcher.Constraint("Symmetric", 0, 2, 2, 2, -1, 1))
sketch9.addConstraint(Sketcher.Constraint("Symmetric", 5, 2, 7, 2, -1, 1))
sketch9.addConstraint(Sketcher.Constraint("Horizontal", 5, 2, 8, 2))
sketch9.addConstraint(Sketcher.Constraint("Horizontal", 3, 2, 10, 2))
sketch9.addConstraint(Sketcher.Constraint("DistanceY", 4, 2, 4, 1, 1.5))
sketch9.addConstraint(Sketcher.Constraint("DistanceX", 5, 2, 2, 2, 1.5))
sketch9.addConstraint(Sketcher.Constraint("DistanceX", 1, 2, 1, 1, 64.11))
sketch9.addConstraint(Sketcher.Constraint("DistanceX", 3, 1, 3, 2, 2.647))
sketch9.addConstraint(Sketcher.Constraint("DistanceX", 9, 2, 9, 1, 4.343))
sketch9.addConstraint(Sketcher.Constraint("DistanceY", 0, 1, 0, 2, 89.293))
pad5 = body.newObject("PartDesign::Pad", "Pad004")
pad5.Profile = sketch9
pad5.Type = "TwoLengths"
pad5.Length = 11.5
pad5.Length2 = 3
pad5.Reversed = True

sketch10 = body.newObject("Sketcher::SketchObject", "Sketch009")
sketch10.AttachmentSupport = (doc.getObject("XZ_Plane"), [""])
sketch10.MapMode = "FlatFace"
sketch10.AttachmentOffset = App.Placement(Vector(0, 0, -46.1465), App.Rotation())
sketch10.addGeometry(Part.LineSegment(Vector(-18.8, -1.3, 0), Vector(-18.8, 0, 0)), False)
sketch10.addGeometry(Part.LineSegment(Vector(-18.8, 0, 0), Vector(7.7, 0, 0)), False)
sketch10.addGeometry(Part.LineSegment(Vector(7.7, 0, 0), Vector(7.7, -1.3, 0)), False)
sketch10.addGeometry(Part.LineSegment(Vector(7.7, -1.3, 0), Vector(-18.8, -1.3, 0)), False)
sketch10.addConstraint(Sketcher.Constraint("Coincident", 0, 2, 1, 1))
sketch10.addConstraint(Sketcher.Constraint("Coincident", 1, 2, 2, 1))
sketch10.addConstraint(Sketcher.Constraint("Coincident", 2, 2, 3, 1))
sketch10.addConstraint(Sketcher.Constraint("Coincident", 3, 2, 0, 1))
sketch10.addConstraint(Sketcher.Constraint("Vertical", 0))
sketch10.addConstraint(Sketcher.Constraint("Horizontal", 1))
sketch10.addConstraint(Sketcher.Constraint("Vertical", 2))
sketch10.addConstraint(Sketcher.Constraint("Horizontal", 3))
sketch10.addConstraint(Sketcher.Constraint("PointOnObject", 0, 2, -1))
sketch10.addConstraint(Sketcher.Constraint("DistanceY", 0, 1, 0, 2, 1.3))
sketch10.addConstraint(Sketcher.Constraint("DistanceX", 1, 1, 1, 2, 26.5))
sketch10.addConstraint(Sketcher.Constraint("DistanceX", 0, 2, -1, 1, 18.775))
pocket5 = body.newObject("PartDesign::Pocket", "Pocket004")
pocket5.Profile = sketch10
pocket5.Length = 11
pocket5.Reversed = True

sketch11 = body.newObject("Sketcher::SketchObject", "Sketch010")
sketch11.AttachmentSupport = (doc.getObject("XZ_Plane"), [""])
sketch11.MapMode = "FlatFace"
sketch11.AttachmentOffset = App.Placement(Vector(0, 0, -46.1465), App.Rotation())
sketch11.addGeometry(Part.LineSegment(Vector(4.9, -10.5, 0), Vector(4.9, -11.5, 0)), False)
sketch11.addGeometry(Part.LineSegment(Vector(4.9, -11.5, 0), Vector(-16, -11.5, 0)), False)
sketch11.addGeometry(Part.LineSegment(Vector(-16, -11.5, 0), Vector(-16, -10.5, 0)), False)
sketch11.addGeometry(Part.LineSegment(Vector(-16, -10.5, 0), Vector(4.9, -10.5, 0)), False)
sketch11.addConstraint(Sketcher.Constraint("Coincident", 0, 2, 1, 1))
sketch11.addConstraint(Sketcher.Constraint("Coincident", 1, 2, 2, 1))
sketch11.addConstraint(Sketcher.Constraint("Coincident", 2, 2, 3, 1))
sketch11.addConstraint(Sketcher.Constraint("Coincident", 3, 2, 0, 1))
sketch11.addConstraint(Sketcher.Constraint("Vertical", 0))
sketch11.addConstraint(Sketcher.Constraint("Horizontal", 1))
sketch11.addConstraint(Sketcher.Constraint("Vertical", 2))
sketch11.addConstraint(Sketcher.Constraint("Horizontal", 3))
sketch11.addConstraint(Sketcher.Constraint("DistanceY", 0, 2, 0, 1, 1.0))
sketch11.addConstraint(Sketcher.Constraint("DistanceX", 1, 2, 1, 1, 20.97))
sketch11.addConstraint(Sketcher.Constraint("DistanceY", 0, 2, -1, 1, 11.5))
sketch11.addConstraint(Sketcher.Constraint("DistanceX", -1, 1, 0, 2, 4.945))
pocket6 = body.newObject("PartDesign::Pocket", "Pocket005")
pocket6.Profile = sketch11
pocket6.Length = 11
pocket6.Reversed = True

sketch12 = body.newObject("Sketcher::SketchObject", "Sketch011")
sketch12.AttachmentSupport = (doc.getObject("XY_Plane"), [""])
sketch12.MapMode = "FlatFace"
sketch12.addGeometry(Part.LineSegment(Vector(-19, 21, 0), Vector(-19, 46, 0)), False)
sketch12.addGeometry(Part.LineSegment(Vector(-19, 46, 0), Vector(8, 46, 0)), False)
sketch12.addGeometry(Part.LineSegment(Vector(8, 46, 0), Vector(8, 21, 0)), False)
sketch12.addGeometry(Part.LineSegment(Vector(8, 21, 0), Vector(-19, 21, 0)), False)
sketch12.addConstraint(Sketcher.Constraint("Coincident", 0, 2, 1, 1))
sketch12.addConstraint(Sketcher.Constraint("Coincident", 1, 2, 2, 1))
sketch12.addConstraint(Sketcher.Constraint("Coincident", 2, 2, 3, 1))
sketch12.addConstraint(Sketcher.Constraint("Coincident", 3, 2, 0, 1))
sketch12.addConstraint(Sketcher.Constraint("Vertical", 0))
sketch12.addConstraint(Sketcher.Constraint("Horizontal", 1))
sketch12.addConstraint(Sketcher.Constraint("Vertical", 2))
sketch12.addConstraint(Sketcher.Constraint("Horizontal", 3))
sketch12.addConstraint(Sketcher.Constraint("DistanceX", 1, 1, 1, 2, 26.5))
sketch12.addConstraint(Sketcher.Constraint("DistanceY", 0, 1, 0, 2, 25.589))
sketch12.addConstraint(Sketcher.Constraint("DistanceX", 0, 2, -1, 1, 18.775))
sketch12.addConstraint(Sketcher.Constraint("DistanceY", -1, 1, 0, 2, 46.1465))
pocket7 = body.newObject("PartDesign::Pocket", "Pocket006")
pocket7.Profile = sketch12
pocket7.Length = 1.3
pocket7.Reversed = True

sketch13 = body.newObject("Sketcher::SketchObject", "Sketch012")
sketch13.AttachmentSupport = (doc.getObject("YZ_Plane"), [""])
sketch13.MapMode = "FlatFace"
sketch13.AttachmentOffset = App.Placement(Vector(0, 0, 33.555), App.Rotation())
sketch13.addGeometry(Part.LineSegment(Vector(30, -11.5, 0), Vector(40.5, -11.5, 0)), False)
sketch13.addGeometry(Part.LineSegment(Vector(40.5, -11.5, 0), Vector(40.5, -8.5, 0)), False)
sketch13.addGeometry(Part.LineSegment(Vector(40.5, -8.5, 0), Vector(30, -8.5, 0)), False)
sketch13.addGeometry(Part.LineSegment(Vector(30, -8.5, 0), Vector(30, -11.5, 0)), False)
sketch13.addConstraint(Sketcher.Constraint("Coincident", 0, 2, 1, 1))
sketch13.addConstraint(Sketcher.Constraint("Coincident", 1, 2, 2, 1))
sketch13.addConstraint(Sketcher.Constraint("Coincident", 2, 2, 3, 1))
sketch13.addConstraint(Sketcher.Constraint("Coincident", 3, 2, 0, 1))
sketch13.addConstraint(Sketcher.Constraint("Horizontal", 0))
sketch13.addConstraint(Sketcher.Constraint("Vertical", 1))
sketch13.addConstraint(Sketcher.Constraint("Horizontal", 2))
sketch13.addConstraint(Sketcher.Constraint("Vertical", 3))
sketch13.addConstraint(Sketcher.Constraint("DistanceY", 1, 1, 1, 2, 3.0))
sketch13.addConstraint(Sketcher.Constraint("DistanceX", 0, 1, 0, 2, 10.44))
sketch13.addConstraint(Sketcher.Constraint("DistanceY", 0, 2, -1, 1, 11.5))
sketch13.addConstraint(Sketcher.Constraint("DistanceX", -1, 1, 0, 2, 40.4675))
pocket8 = body.newObject("PartDesign::Pocket", "Pocket007")
pocket8.Profile = sketch13
pocket8.Length = 1.5

sketch14 = body.newObject("Sketcher::SketchObject", "Sketch013")
sketch14.AttachmentSupport = (doc.getObject("XY_Plane"), [""])
sketch14.MapMode = "FlatFace"
sketch14.addGeometry(Part.Circle(Vector(-24.1, 4.4, 0), Vector(0, 0, 1), 3), False)
sketch14.addGeometry(Part.Circle(Vector(-24.1, 4.4, 0), Vector(0, 0, 1), 1.7), False)
sketch14.addGeometry(Part.Circle(Vector(-24.1, -19.6, 0), Vector(0, 0, 1), 3), False)
sketch14.addGeometry(Part.Circle(Vector(-24.1, -19.6, 0), Vector(0, 0, 1), 1.7), False)
sketch14.addGeometry(Part.Circle(Vector(24.4, 4.4, 0), Vector(0, 0, 1), 3), False)
sketch14.addGeometry(Part.Circle(Vector(24.4, 4.4, 0), Vector(0, 0, 1), 1.7), False)
sketch14.addGeometry(Part.Circle(Vector(24.4, -19.6, 0), Vector(0, 0, 1), 3), False)
sketch14.addGeometry(Part.Circle(Vector(24.4, -19.6, 0), Vector(0, 0, 1), 1.7), False)
sketch14.addConstraint(Sketcher.Constraint("Coincident", 1, 3, 0, 3))
sketch14.addConstraint(Sketcher.Constraint("Coincident", 3, 3, 2, 3))
sketch14.addConstraint(Sketcher.Constraint("Coincident", 5, 3, 4, 3))
sketch14.addConstraint(Sketcher.Constraint("Coincident", 7, 3, 6, 3))
sketch14.addConstraint(Sketcher.Constraint("Equal", 0, 2))
sketch14.addConstraint(Sketcher.Constraint("Equal", 1, 3))
sketch14.addConstraint(Sketcher.Constraint("Equal", 2, 4))
sketch14.addConstraint(Sketcher.Constraint("Equal", 3, 5))
sketch14.addConstraint(Sketcher.Constraint("Equal", 4, 6))
sketch14.addConstraint(Sketcher.Constraint("Equal", 5, 7))
sketch14.addConstraint(Sketcher.Constraint("Horizontal", 1, 3, 4, 3))
sketch14.addConstraint(Sketcher.Constraint("Horizontal", 3, 3, 6, 3))
sketch14.addConstraint(Sketcher.Constraint("Vertical", 1, 3, 2, 3))
sketch14.addConstraint(Sketcher.Constraint("Vertical", 5, 3, 6, 3))
sketch14.addConstraint(Sketcher.Constraint("Diameter", 0, 6.0))
sketch14.addConstraint(Sketcher.Constraint("Diameter", 1, 3.4))
sketch14.addConstraint(Sketcher.Constraint("DistanceY", 2, 3, 0, 3, 24.0))
sketch14.addConstraint(Sketcher.Constraint("DistanceX", 0, 3, -1, 1, 24.107))
sketch14.addConstraint(Sketcher.Constraint("DistanceX", -1, 1, 4, 3, 24.394))
sketch14.addConstraint(Sketcher.Constraint("DistanceY", -1, 1, 0, 3, 4.4405))
pad6 = body.newObject("PartDesign::Pad", "Pad005")
pad6.Profile = sketch14
pad6.Length = 0.5
pad6.Reversed = True

sketch15 = body.newObject("Sketcher::SketchObject", "Sketch014")
sketch15.AttachmentSupport = (doc.getObject("XY_Plane"), [""])
sketch15.MapMode = "FlatFace"
sketch15.AttachmentOffset = App.Placement(Vector(0, 0, -11.5), App.Rotation())
sketch15.addGeometry(Part.LineSegment(Vector(32.1, 30, 0), Vector(33.6, 30, 0)), False)
sketch15.addGeometry(Part.LineSegment(Vector(33.6, 30, 0), Vector(33.6, -46.1, 0)), False)
sketch15.addGeometry(Part.LineSegment(Vector(33.6, -46.1, 0), Vector(29.2, -46.1, 0)), False)
sketch15.addGeometry(Part.LineSegment(Vector(29.2, -46.1, 0), Vector(29.2, -32.8, 0)), False)
sketch15.addGeometry(Part.LineSegment(Vector(29.2, -32.8, 0), Vector(32.1, -32.8, 0)), False)
sketch15.addGeometry(Part.LineSegment(Vector(32.1, -32.8, 0), Vector(32.1, 30, 0)), False)
sketch15.addGeometry(Part.LineSegment(Vector(33.6, 46.1, 0), Vector(33.6, 40.5, 0)), False)
sketch15.addGeometry(Part.LineSegment(Vector(33.6, 40.5, 0), Vector(32.1, 40.5, 0)), False)
sketch15.addGeometry(Part.LineSegment(Vector(32.1, 40.5, 0), Vector(32.1, 44.6, 0)), False)
sketch15.addGeometry(Part.LineSegment(Vector(32.1, 44.6, 0), Vector(4.9, 44.6, 0)), False)
sketch15.addGeometry(Part.LineSegment(Vector(4.9, 44.6, 0), Vector(4.9, 46.1, 0)), False)
sketch15.addGeometry(Part.LineSegment(Vector(4.9, 46.1, 0), Vector(33.6, 46.1, 0)), False)
sketch15.addGeometry(Part.LineSegment(Vector(-33.6, 46.1, 0), Vector(-16, 46.1, 0)), False)
sketch15.addGeometry(Part.LineSegment(Vector(-16, 46.1, 0), Vector(-16, 44.6, 0)), False)
sketch15.addGeometry(Part.LineSegment(Vector(-16, 44.6, 0), Vector(-32.1, 44.6, 0)), False)
sketch15.addGeometry(Part.LineSegment(Vector(-32.1, 44.6, 0), Vector(-32.1, -32.8, 0)), False)
sketch15.addGeometry(Part.LineSegment(Vector(-32.1, -32.8, 0), Vector(-29.4, -32.8, 0)), False)
sketch15.addGeometry(Part.LineSegment(Vector(-29.4, -32.8, 0), Vector(-29.4, -46.1, 0)), False)
sketch15.addGeometry(Part.LineSegment(Vector(-29.4, -46.1, 0), Vector(-33.6, -46.1, 0)), False)
sketch15.addGeometry(Part.LineSegment(Vector(-33.6, -46.1, 0), Vector(-33.6, 46.1, 0)), False)
sketch15.addConstraint(Sketcher.Constraint("Coincident", 0, 2, 1, 1))
sketch15.addConstraint(Sketcher.Constraint("Coincident", 1, 2, 2, 1))
sketch15.addConstraint(Sketcher.Constraint("Coincident", 2, 2, 3, 1))
sketch15.addConstraint(Sketcher.Constraint("Coincident", 3, 2, 4, 1))
sketch15.addConstraint(Sketcher.Constraint("Coincident", 4, 2, 5, 1))
sketch15.addConstraint(Sketcher.Constraint("Coincident", 5, 2, 0, 1))
sketch15.addConstraint(Sketcher.Constraint("Coincident", 6, 2, 7, 1))
sketch15.addConstraint(Sketcher.Constraint("Coincident", 7, 2, 8, 1))
sketch15.addConstraint(Sketcher.Constraint("Coincident", 8, 2, 9, 1))
sketch15.addConstraint(Sketcher.Constraint("Coincident", 9, 2, 10, 1))
sketch15.addConstraint(Sketcher.Constraint("Coincident", 10, 2, 11, 1))
sketch15.addConstraint(Sketcher.Constraint("Coincident", 11, 2, 6, 1))
sketch15.addConstraint(Sketcher.Constraint("Coincident", 12, 2, 13, 1))
sketch15.addConstraint(Sketcher.Constraint("Coincident", 13, 2, 14, 1))
sketch15.addConstraint(Sketcher.Constraint("Coincident", 14, 2, 15, 1))
sketch15.addConstraint(Sketcher.Constraint("Coincident", 15, 2, 16, 1))
sketch15.addConstraint(Sketcher.Constraint("Coincident", 16, 2, 17, 1))
sketch15.addConstraint(Sketcher.Constraint("Coincident", 17, 2, 18, 1))
sketch15.addConstraint(Sketcher.Constraint("Coincident", 18, 2, 19, 1))
sketch15.addConstraint(Sketcher.Constraint("Coincident", 19, 2, 12, 1))
sketch15.addConstraint(Sketcher.Constraint("Horizontal", 0))
sketch15.addConstraint(Sketcher.Constraint("Vertical", 1))
sketch15.addConstraint(Sketcher.Constraint("Horizontal", 2))
sketch15.addConstraint(Sketcher.Constraint("Vertical", 3))
sketch15.addConstraint(Sketcher.Constraint("Horizontal", 4))
sketch15.addConstraint(Sketcher.Constraint("Vertical", 5))
sketch15.addConstraint(Sketcher.Constraint("Vertical", 6))
sketch15.addConstraint(Sketcher.Constraint("Horizontal", 7))
sketch15.addConstraint(Sketcher.Constraint("Vertical", 8))
sketch15.addConstraint(Sketcher.Constraint("Horizontal", 9))
sketch15.addConstraint(Sketcher.Constraint("Vertical", 10))
sketch15.addConstraint(Sketcher.Constraint("Horizontal", 11))
sketch15.addConstraint(Sketcher.Constraint("Horizontal", 12))
sketch15.addConstraint(Sketcher.Constraint("Vertical", 13))
sketch15.addConstraint(Sketcher.Constraint("Horizontal", 14))
sketch15.addConstraint(Sketcher.Constraint("Vertical", 15))
sketch15.addConstraint(Sketcher.Constraint("Horizontal", 16))
sketch15.addConstraint(Sketcher.Constraint("Vertical", 17))
sketch15.addConstraint(Sketcher.Constraint("Horizontal", 18))
sketch15.addConstraint(Sketcher.Constraint("Vertical", 19))
sketch15.addConstraint(Sketcher.Constraint("Symmetric", 11, 2, 18, 2, -1, 1))
sketch15.addConstraint(Sketcher.Constraint("Symmetric", 1, 2, 19, 2, -1, 1))
sketch15.addConstraint(Sketcher.Constraint("Symmetric", 8, 2, 14, 2, -2))
sketch15.addConstraint(Sketcher.Constraint("Symmetric", 4, 2, 15, 2, -2))
sketch15.addConstraint(Sketcher.Constraint("Horizontal", 11, 2, 12, 2))
sketch15.addConstraint(Sketcher.Constraint("Equal", 7, 10))
sketch15.addConstraint(Sketcher.Constraint("DistanceX", 0, 1, 0, 2, 1.5))
sketch15.addConstraint(Sketcher.Constraint("DistanceX", 14, 2, 9, 2, 37.0))
sketch15.addConstraint(Sketcher.Constraint("DistanceX", 9, 2, 9, 1, 27.11))
sketch15.addConstraint(Sketcher.Constraint("DistanceX", 12, 1, 12, 2, 17.53))
sketch15.addConstraint(Sketcher.Constraint("DistanceY", 15, 2, 15, 1, 77.41))
sketch15.addConstraint(Sketcher.Constraint("DistanceX", 2, 2, 2, 1, 4.343))
sketch15.addConstraint(Sketcher.Constraint("DistanceX", 16, 1, 16, 2, 2.647))
sketch15.addConstraint(Sketcher.Constraint("DistanceY", 1, 2, 1, 1, 76.174))
sketch15.addConstraint(Sketcher.Constraint("DistanceY", 3, 1, 3, 2, 13.383))
sketch15.addConstraint(Sketcher.Constraint("DistanceY", 6, 2, 6, 1, 5.679))
pad7 = body.newObject("PartDesign::Pad", "Pad006")
pad7.Profile = sketch15
pad7.Length = 1
pad7.Reversed = True

doc.recompute()
